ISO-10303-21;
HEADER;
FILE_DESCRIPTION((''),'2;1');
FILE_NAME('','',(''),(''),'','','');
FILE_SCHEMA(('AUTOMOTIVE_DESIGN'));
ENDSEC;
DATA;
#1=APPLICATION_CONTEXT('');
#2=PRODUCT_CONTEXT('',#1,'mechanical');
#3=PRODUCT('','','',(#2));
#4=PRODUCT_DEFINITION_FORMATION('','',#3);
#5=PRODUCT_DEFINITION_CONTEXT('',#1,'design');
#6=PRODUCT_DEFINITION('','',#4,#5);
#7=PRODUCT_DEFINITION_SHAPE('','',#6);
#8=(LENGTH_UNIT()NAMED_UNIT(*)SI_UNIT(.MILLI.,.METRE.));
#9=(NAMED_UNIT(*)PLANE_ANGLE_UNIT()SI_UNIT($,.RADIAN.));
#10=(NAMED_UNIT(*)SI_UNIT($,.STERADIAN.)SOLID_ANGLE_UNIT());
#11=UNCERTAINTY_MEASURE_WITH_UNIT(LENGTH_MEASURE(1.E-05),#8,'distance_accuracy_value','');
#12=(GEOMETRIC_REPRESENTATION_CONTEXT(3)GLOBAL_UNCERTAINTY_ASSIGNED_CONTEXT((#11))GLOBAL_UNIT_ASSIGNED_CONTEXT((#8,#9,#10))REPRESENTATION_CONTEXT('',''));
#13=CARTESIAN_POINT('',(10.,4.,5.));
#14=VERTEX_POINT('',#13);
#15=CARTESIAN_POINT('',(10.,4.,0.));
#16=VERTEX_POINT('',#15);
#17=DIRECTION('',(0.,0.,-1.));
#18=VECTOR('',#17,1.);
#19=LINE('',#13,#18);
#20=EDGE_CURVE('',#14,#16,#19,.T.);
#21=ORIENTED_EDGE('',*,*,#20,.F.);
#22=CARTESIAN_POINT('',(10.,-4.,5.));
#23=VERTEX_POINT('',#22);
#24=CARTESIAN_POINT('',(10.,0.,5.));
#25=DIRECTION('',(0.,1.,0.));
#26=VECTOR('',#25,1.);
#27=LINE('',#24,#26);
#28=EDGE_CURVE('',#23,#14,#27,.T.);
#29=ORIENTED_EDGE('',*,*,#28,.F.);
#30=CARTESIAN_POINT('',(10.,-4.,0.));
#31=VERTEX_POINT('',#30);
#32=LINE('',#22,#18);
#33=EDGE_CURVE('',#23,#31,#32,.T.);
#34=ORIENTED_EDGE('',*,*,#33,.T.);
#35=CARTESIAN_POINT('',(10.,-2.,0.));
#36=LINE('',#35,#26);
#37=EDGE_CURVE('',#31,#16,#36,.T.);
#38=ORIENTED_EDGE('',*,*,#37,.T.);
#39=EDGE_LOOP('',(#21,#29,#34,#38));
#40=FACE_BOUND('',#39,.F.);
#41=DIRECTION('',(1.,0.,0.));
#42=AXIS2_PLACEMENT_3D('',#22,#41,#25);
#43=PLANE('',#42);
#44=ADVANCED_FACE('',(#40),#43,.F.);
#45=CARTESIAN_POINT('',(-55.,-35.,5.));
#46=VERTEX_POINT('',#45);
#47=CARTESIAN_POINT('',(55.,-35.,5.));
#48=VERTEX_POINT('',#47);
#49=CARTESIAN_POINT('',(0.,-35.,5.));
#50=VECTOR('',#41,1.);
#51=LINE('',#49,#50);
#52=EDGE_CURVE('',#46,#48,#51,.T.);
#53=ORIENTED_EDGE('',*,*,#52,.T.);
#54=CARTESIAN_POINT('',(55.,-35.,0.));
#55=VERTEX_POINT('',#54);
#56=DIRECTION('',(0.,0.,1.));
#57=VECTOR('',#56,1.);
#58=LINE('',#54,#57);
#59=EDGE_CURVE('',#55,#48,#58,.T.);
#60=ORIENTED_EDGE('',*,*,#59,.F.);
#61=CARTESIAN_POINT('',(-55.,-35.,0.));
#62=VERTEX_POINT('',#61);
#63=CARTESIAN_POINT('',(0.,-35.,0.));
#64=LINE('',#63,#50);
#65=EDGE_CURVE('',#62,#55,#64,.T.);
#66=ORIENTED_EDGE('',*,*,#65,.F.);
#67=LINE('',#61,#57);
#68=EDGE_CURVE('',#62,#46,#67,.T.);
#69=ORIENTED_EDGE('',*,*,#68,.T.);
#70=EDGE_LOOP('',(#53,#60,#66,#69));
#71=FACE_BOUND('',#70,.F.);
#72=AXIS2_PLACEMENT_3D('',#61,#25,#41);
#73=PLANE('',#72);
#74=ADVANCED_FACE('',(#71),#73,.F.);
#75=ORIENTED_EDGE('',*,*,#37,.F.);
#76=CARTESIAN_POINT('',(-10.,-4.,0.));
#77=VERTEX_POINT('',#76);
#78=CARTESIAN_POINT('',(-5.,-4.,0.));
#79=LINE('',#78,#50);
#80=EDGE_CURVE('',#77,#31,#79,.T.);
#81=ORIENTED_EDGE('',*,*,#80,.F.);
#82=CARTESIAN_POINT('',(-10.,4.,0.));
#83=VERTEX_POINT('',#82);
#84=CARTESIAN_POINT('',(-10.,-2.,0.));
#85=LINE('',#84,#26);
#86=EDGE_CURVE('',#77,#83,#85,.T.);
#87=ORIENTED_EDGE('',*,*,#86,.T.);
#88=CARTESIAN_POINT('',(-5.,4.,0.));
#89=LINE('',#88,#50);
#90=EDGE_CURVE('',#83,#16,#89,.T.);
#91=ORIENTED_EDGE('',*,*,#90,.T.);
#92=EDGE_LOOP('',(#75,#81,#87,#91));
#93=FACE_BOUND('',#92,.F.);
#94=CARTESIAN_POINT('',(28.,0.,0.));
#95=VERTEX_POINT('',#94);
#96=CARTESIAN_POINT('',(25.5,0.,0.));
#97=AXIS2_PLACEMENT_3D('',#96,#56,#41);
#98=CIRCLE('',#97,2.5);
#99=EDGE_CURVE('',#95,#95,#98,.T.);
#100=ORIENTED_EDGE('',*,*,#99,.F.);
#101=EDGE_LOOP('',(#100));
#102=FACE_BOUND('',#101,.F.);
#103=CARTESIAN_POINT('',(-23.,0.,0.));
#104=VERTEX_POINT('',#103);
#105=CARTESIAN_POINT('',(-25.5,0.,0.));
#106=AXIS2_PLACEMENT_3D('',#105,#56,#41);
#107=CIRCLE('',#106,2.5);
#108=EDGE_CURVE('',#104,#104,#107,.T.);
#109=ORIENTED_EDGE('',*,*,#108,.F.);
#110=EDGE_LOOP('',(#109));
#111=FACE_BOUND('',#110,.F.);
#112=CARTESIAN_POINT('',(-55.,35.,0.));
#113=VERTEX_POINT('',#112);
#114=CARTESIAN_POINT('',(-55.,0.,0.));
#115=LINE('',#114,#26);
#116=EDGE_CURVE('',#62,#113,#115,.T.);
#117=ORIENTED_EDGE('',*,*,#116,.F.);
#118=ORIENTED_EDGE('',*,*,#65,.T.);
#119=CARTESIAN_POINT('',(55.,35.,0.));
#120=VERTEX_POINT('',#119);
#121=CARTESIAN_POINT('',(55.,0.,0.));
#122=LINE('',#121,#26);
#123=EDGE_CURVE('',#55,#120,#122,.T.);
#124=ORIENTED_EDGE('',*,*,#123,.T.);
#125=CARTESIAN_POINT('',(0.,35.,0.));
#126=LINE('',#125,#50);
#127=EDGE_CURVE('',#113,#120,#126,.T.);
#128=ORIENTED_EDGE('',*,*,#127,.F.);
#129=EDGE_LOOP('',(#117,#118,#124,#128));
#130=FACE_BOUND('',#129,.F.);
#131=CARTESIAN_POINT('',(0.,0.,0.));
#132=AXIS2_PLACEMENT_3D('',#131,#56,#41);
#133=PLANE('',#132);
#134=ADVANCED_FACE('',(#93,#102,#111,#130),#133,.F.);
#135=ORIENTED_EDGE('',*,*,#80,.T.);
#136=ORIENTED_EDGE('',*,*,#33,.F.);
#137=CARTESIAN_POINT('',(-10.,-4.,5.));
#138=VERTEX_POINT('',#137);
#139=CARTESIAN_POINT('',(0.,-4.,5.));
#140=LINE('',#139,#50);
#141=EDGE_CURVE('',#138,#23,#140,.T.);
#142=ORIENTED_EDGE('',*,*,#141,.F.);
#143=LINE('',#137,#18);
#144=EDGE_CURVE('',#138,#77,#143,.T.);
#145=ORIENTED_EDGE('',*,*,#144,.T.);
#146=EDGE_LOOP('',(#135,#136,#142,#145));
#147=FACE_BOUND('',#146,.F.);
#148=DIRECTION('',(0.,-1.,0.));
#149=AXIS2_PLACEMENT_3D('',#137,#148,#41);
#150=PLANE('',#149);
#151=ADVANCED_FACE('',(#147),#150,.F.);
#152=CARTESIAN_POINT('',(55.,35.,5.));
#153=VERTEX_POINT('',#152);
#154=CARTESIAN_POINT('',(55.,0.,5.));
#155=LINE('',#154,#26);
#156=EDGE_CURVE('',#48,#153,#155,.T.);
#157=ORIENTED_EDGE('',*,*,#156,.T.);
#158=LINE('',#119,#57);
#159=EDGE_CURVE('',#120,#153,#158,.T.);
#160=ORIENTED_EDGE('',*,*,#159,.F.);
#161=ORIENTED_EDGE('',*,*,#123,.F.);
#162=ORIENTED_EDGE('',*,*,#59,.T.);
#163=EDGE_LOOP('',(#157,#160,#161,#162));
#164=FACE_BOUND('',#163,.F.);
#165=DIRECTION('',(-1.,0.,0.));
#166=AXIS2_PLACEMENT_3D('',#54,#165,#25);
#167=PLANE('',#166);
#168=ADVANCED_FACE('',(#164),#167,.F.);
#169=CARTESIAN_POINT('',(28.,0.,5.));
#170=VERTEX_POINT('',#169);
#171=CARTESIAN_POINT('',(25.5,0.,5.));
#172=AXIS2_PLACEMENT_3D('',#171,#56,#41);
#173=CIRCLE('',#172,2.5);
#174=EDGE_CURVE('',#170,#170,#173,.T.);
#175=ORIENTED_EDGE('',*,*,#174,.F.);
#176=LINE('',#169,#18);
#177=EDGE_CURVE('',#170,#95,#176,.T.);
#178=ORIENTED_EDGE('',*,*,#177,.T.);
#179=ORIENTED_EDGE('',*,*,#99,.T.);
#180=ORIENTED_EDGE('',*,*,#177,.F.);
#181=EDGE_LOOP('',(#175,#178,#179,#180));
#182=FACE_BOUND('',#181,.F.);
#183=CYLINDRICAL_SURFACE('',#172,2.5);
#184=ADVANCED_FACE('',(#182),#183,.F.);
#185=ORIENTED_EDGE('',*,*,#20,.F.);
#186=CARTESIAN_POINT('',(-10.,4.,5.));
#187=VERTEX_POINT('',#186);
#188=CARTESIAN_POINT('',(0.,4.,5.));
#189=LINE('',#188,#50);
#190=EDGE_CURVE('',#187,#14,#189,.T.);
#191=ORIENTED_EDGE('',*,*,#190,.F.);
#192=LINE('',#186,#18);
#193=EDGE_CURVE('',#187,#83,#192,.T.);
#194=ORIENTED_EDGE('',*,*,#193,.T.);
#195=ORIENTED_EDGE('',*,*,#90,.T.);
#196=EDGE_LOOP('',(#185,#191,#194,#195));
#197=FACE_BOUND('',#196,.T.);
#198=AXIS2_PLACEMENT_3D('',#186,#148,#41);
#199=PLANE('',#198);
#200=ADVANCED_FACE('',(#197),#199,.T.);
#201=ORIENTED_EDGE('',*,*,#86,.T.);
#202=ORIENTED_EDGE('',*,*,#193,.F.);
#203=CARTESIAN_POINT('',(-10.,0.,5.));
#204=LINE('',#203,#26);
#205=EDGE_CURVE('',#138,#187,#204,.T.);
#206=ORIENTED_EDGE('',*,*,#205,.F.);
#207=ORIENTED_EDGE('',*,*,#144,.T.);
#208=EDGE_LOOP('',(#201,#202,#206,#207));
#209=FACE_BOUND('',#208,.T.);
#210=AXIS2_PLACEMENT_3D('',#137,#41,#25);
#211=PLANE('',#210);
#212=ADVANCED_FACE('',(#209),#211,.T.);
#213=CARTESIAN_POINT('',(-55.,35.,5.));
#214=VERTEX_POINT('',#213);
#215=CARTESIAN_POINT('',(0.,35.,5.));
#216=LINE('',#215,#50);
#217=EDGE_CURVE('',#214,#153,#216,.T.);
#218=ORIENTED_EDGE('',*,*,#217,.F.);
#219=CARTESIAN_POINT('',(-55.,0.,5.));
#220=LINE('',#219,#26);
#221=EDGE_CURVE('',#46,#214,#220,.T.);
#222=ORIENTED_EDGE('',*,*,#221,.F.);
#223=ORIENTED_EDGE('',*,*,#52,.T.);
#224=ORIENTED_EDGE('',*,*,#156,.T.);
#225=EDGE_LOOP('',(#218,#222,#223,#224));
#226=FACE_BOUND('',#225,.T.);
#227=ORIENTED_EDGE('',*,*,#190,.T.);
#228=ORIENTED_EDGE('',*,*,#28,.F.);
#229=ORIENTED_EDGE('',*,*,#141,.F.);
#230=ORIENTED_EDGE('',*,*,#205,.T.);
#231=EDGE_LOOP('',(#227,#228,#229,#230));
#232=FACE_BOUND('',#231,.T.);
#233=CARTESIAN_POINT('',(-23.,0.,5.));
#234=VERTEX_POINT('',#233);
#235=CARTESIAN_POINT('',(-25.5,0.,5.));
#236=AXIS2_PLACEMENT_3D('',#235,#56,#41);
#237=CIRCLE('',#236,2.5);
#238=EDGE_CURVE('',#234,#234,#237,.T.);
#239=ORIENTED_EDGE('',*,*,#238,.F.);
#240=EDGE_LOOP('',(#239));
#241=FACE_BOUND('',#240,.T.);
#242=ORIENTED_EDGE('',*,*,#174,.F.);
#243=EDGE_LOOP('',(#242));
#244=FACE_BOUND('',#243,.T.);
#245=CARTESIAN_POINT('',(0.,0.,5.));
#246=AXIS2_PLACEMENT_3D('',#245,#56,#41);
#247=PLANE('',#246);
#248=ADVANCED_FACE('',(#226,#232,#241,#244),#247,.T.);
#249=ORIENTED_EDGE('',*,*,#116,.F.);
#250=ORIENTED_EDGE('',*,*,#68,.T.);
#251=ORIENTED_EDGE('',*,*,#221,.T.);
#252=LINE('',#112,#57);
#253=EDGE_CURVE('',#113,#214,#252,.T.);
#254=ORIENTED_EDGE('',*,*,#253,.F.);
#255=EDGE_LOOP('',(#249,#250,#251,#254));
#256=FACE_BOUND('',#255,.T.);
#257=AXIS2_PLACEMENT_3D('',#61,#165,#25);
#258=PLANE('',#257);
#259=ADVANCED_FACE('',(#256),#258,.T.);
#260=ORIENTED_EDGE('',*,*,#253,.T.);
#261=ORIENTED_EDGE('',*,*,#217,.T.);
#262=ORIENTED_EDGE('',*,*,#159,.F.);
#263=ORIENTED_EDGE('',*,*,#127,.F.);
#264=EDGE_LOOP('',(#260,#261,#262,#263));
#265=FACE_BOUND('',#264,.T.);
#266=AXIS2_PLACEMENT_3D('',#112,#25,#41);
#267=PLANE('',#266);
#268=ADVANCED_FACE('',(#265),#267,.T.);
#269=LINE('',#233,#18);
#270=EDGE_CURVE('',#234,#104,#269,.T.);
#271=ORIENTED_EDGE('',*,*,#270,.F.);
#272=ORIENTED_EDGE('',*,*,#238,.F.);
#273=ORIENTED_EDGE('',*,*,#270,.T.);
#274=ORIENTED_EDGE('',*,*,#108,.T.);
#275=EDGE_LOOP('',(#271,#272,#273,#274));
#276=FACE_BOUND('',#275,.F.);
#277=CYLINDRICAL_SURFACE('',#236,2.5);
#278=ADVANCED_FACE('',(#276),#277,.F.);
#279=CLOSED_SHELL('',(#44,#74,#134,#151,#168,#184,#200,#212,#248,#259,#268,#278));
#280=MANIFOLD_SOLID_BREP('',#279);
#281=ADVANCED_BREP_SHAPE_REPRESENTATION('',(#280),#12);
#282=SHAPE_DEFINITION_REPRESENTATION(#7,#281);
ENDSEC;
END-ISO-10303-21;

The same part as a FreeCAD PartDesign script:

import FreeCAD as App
import Part
import Sketcher

V = App.Vector

doc = App.newDocument("Part")
params = doc.addObject("Spreadsheet::Sheet", "Params")
for row, (alias, value) in enumerate([
    ("sketch1_width", "110 mm"),
    ("sketch1_height", "70 mm"),
    ("pad1_length", "5 mm"),
    ("sketch2_width", "20 mm"),
    ("sketch2_height", "8 mm"),
    ("sketch3_diameter", "5 mm"),
    ("sketch4_diameter", "5 mm"),
], start=1):
    params.set(f"A{row}", alias)
    params.set(f"B{row}", "=" + value)
    params.setAlias(f"B{row}", alias)

body = doc.addObject("PartDesign::Body", "Body")

# Sketch on XY plane
sketch1 = body.newObject("Sketcher::SketchObject", "Sketch")
sketch1.AttachmentSupport = (doc.getObject("XY_Plane"), [""])
sketch1.MapMode = "FlatFace"
sketch1.addGeometry([
    Part.LineSegment(V(-55, 35, 0), V(-55, -35, 0)),
    Part.LineSegment(V(-55, -35, 0), V(55, -35, 0)),
    Part.LineSegment(V(55, -35, 0), V(55, 35, 0)),
    Part.LineSegment(V(55, 35, 0), V(-55, 35, 0)),
], False)
sketch1.addConstraint([
    Sketcher.Constraint("Coincident", 0, 2, 1, 1),
    Sketcher.Constraint("Coincident", 1, 2, 2, 1),
    Sketcher.Constraint("Coincident", 2, 2, 3, 1),
    Sketcher.Constraint("Coincident", 3, 2, 0, 1),
    Sketcher.Constraint("Vertical", 0),
    Sketcher.Constraint("Horizontal", 1),
    Sketcher.Constraint("Vertical", 2),
    Sketcher.Constraint("Horizontal", 3),
    Sketcher.Constraint("Symmetric", 0, 2, 2, 2, -1, 1),
    Sketcher.Constraint("DistanceX", 1, 1, 1, 2, 110.0),
    Sketcher.Constraint("DistanceY", 0, 2, 0, 1, 70.0),
])
sketch1.setExpression("Constraints[9]", "Params.sketch1_width")
sketch1.setExpression("Constraints[10]", "Params.sketch1_height")
pad1 = body.newObject("PartDesign::Pad", "Pad")
pad1.Profile = sketch1
pad1.setExpression("Length", "Params.pad1_length")

# Sketch on XY plane
sketch2 = body.newObject("Sketcher::SketchObject", "Sketch001")
sketch2.AttachmentSupport = (doc.getObject("XY_Plane"), [""])
sketch2.MapMode = "FlatFace"
sketch2.AttachmentOffset = App.Placement(V(0, 0, 5), App.Rotation())
sketch2.addGeometry([
    Part.LineSegment(V(-10, 4, 0), V(-10, -4, 0)),
    Part.LineSegment(V(-10, -4, 0), V(10, -4, 0)),
    Part.LineSegment(V(10, -4, 0), V(10, 4, 0)),
    Part.LineSegment(V(10, 4, 0), V(-10, 4, 0)),
], False)
sketch2.addConstraint([
    Sketcher.Constraint("Coincident", 0, 2, 1, 1),
    Sketcher.Constraint("Coincident", 1, 2, 2, 1),
    Sketcher.Constraint("Coincident", 2, 2, 3, 1),
    Sketcher.Constraint("Coincident", 3, 2, 0, 1),
    Sketcher.Constraint("Vertical", 0),
    Sketcher.Constraint("Horizontal", 1),
    Sketcher.Constraint("Vertical", 2),
    Sketcher.Constraint("Horizontal", 3),
    Sketcher.Constraint("Symmetric", 0, 2, 2, 2, -1, 1),
    Sketcher.Constraint("DistanceX", 1, 1, 1, 2, 20.0),
    Sketcher.Constraint("DistanceY", 0, 2, 0, 1, 8.0),
])
sketch2.setExpression("Constraints[9]", "Params.sketch2_width")
sketch2.setExpression("Constraints[10]", "Params.sketch2_height")
pocket1 = body.newObject("PartDesign::Pocket", "Pocket")
pocket1.Profile = sketch2
pocket1.Type = "ThroughAll"

# Sketch on XY plane
sketch3 = body.newObject("Sketcher::SketchObject", "Sketch002")
sketch3.AttachmentSupport = (doc.getObject("XY_Plane"), [""])
sketch3.MapMode = "FlatFace"
sketch3.AttachmentOffset = App.Placement(V(0, 0, 5), App.Rotation())
sketch3.addGeometry(Part.Circle(V(-25.5, 0, 0), V(0, 0, 1), 2.5), False)
sketch3.addConstraint([
    Sketcher.Constraint("PointOnObject", 0, 3, -1),
    Sketcher.Constraint("Diameter", 0, 5.0),
    Sketcher.Constraint("DistanceX", 0, 3, -1, 1, 25.5),
])
sketch3.setExpression("Constraints[1]", "Params.sketch3_diameter")
pocket2 = body.newObject("PartDesign::Pocket", "Pocket001")
pocket2.Profile = sketch3
pocket2.Type = "ThroughAll"

# Sketch on XY plane
sketch4 = body.newObject("Sketcher::SketchObject", "Sketch003")
sketch4.AttachmentSupport = (doc.getObject("XY_Plane"), [""])
sketch4.MapMode = "FlatFace"
sketch4.AttachmentOffset = App.Placement(V(0, 0, 5), App.Rotation())
sketch4.addGeometry(Part.Circle(V(25.5, 0, 0), V(0, 0, 1), 2.5), False)
sketch4.addConstraint([
    Sketcher.Constraint("PointOnObject", 0, 3, -1),
    Sketcher.Constraint("Diameter", 0, 5.0),
    Sketcher.Constraint("DistanceX", -1, 1, 0, 3, 25.5),
])
sketch4.setExpression("Constraints[1]", "Params.sketch4_diameter")
pocket3 = body.newObject("PartDesign::Pocket", "Pocket002")
pocket3.Profile = sketch4
pocket3.Type = "ThroughAll"

doc.recompute()
